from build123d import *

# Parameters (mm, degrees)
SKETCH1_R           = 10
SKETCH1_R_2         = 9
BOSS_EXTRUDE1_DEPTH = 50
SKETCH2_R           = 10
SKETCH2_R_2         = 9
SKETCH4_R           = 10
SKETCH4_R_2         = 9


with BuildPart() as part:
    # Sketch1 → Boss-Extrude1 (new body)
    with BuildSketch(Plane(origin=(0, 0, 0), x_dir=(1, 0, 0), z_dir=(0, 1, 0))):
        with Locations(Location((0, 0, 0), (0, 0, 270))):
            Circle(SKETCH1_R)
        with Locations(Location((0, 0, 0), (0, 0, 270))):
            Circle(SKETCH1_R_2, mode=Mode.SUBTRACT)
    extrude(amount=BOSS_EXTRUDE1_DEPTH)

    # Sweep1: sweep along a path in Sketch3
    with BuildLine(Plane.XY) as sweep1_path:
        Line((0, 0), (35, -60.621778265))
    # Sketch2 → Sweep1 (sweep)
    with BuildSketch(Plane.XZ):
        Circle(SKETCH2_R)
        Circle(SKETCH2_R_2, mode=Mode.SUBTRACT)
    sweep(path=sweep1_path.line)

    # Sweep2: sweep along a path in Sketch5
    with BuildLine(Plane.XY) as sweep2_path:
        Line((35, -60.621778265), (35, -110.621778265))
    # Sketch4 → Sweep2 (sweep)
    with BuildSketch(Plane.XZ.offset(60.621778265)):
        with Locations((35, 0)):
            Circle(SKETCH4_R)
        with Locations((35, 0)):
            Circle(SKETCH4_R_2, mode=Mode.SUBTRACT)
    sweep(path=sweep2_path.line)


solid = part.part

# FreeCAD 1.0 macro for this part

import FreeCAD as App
import Part
import Sketcher
from FreeCAD import Vector
Q = App.Units.Quantity

doc = App.newDocument("Part")
params = doc.addObject("Spreadsheet::Sheet", "Params")
for row, (alias, value) in enumerate([
    ("sketch1_diameter", "20 mm"),
    ("sketch1_diameter2", "18 mm"),
    ("pad1_length", "50 mm"),
    ("sketch2_diameter", "20 mm"),
    ("sketch2_diameter2", "18 mm"),
    ("sketch3_width", "70 mm"),
    ("sketch4_diameter", "20 mm"),
    ("sketch4_diameter2", "18 mm"),
    ("sketch5_height", "50 mm"),
], start=1):
    params.set(f"A{row}", alias)
    params.set(f"B{row}", "=" + value)
    params.setAlias(f"B{row}", alias)

body = doc.addObject("PartDesign::Body", "Body")

sketch1 = body.newObject("Sketcher::SketchObject", "Sketch")
sketch1.AttachmentSupport = (doc.getObject("XZ_Plane"), [""])
sketch1.MapMode = "FlatFace"
sketch1.addGeometry(Part.Circle(Vector(0, 0, 0), Vector(0, 0, 1), 10), False)
sketch1.addGeometry(Part.Circle(Vector(0, 0, 0), Vector(0, 0, 1), 9), False)
sketch1.addConstraint(Sketcher.Constraint("Coincident", 0, 3, -1, 1))
sketch1.addConstraint(Sketcher.Constraint("Coincident", 1, 3, -1, 1))
sketch1.addConstraint(Sketcher.Constraint("Diameter", 0, Q("20 mm")))
sketch1.addConstraint(Sketcher.Constraint("Diameter", 1, Q("18 mm")))
sketch1.setExpression("Constraints[2]", "Params.sketch1_diameter")
sketch1.setExpression("Constraints[3]", "Params.sketch1_diameter2")
pad1 = body.newObject("PartDesign::Pad", "Pad")
pad1.Profile = sketch1
pad1.setExpression("Length", "Params.pad1_length")
pad1.Reversed = True

sketch2 = body.newObject("Sketcher::SketchObject", "Sketch001")
sketch2.AttachmentSupport = (doc.getObject("XZ_Plane"), [""])
sketch2.MapMode = "FlatFace"
sketch2.addGeometry(Part.Circle(Vector(0, 0, 0), Vector(0, 0, 1), 10), False)
sketch2.addGeometry(Part.Circle(Vector(0, 0, 0), Vector(0, 0, 1), 9), False)
sketch2.addConstraint(Sketcher.Constraint("Coincident", 0, 3, -1, 1))
sketch2.addConstraint(Sketcher.Constraint("Coincident", 1, 3, -1, 1))
sketch2.addConstraint(Sketcher.Constraint("Diameter", 0, Q("20 mm")))
sketch2.addConstraint(Sketcher.Constraint("Diameter", 1, Q("18 mm")))
sketch2.setExpression("Constraints[2]", "Params.sketch2_diameter")
sketch2.setExpression("Constraints[3]", "Params.sketch2_diameter2")

sketch3 = body.newObject("Sketcher::SketchObject", "Sketch002")
sketch3.Placement = App.Placement(Vector(0, 0, 0), App.Rotation(Vector(0.5, -0.866025404, 0), Vector(0, 0, 1), Vector(-0.866025404, -0.5, 0), "ZXY"))
sketch3.addGeometry(Part.LineSegment(Vector(0, 0, 0), Vector(70, 0, 0)), False)
sketch3.addConstraint(Sketcher.Constraint("Horizontal", 0))
sketch3.addConstraint(Sketcher.Constraint("Coincident", 0, 1, -1, 1))
sketch3.addConstraint(Sketcher.Constraint("DistanceX", 0, 1, 0, 2, Q("70 mm")))
sketch3.setExpression("Constraints[2]", "Params.sketch3_width")
doc.recompute()

additivepipe = body.newObject("PartDesign::AdditivePipe", "AdditivePipe")
additivepipe.Profile = sketch2
additivepipe.Spine = (sketch3, ["Edge1"])

sketch4 = body.newObject("Sketcher::SketchObject", "Sketch003")
sketch4.AttachmentSupport = (doc.getObject("XZ_Plane"), [""])
sketch4.MapMode = "FlatFace"
sketch4.AttachmentOffset = App.Placement(Vector(0, 0, 60.621778), App.Rotation())
sketch4.addGeometry(Part.Circle(Vector(35, 0, 0), Vector(0, 0, 1), 10), False)
sketch4.addGeometry(Part.Circle(Vector(35, 0, 0), Vector(0, 0, 1), 9), False)
sketch4.addConstraint(Sketcher.Constraint("Coincident", 1, 3, 0, 3))
sketch4.addConstraint(Sketcher.Constraint("PointOnObject", 0, 3, -1))
sketch4.addConstraint(Sketcher.Constraint("Diameter", 0, Q("20 mm")))
sketch4.addConstraint(Sketcher.Constraint("Diameter", 1, Q("18 mm")))
sketch4.addConstraint(Sketcher.Constraint("DistanceX", -1, 1, 0, 3, Q("35 mm")))
sketch4.setExpression("Constraints[2]", "Params.sketch4_diameter")
sketch4.setExpression("Constraints[3]", "Params.sketch4_diameter2")

sketch5 = body.newObject("Sketcher::SketchObject", "Sketch004")
sketch5.AttachmentSupport = (doc.getObject("XY_Plane"), [""])
sketch5.MapMode = "FlatFace"
sketch5.addGeometry(Part.LineSegment(Vector(35, -61, 0), Vector(35, -111, 0)), False)
sketch5.addConstraint(Sketcher.Constraint("Vertical", 0))
sketch5.addConstraint(Sketcher.Constraint("DistanceY", 0, 2, 0, 1, Q("50 mm")))
sketch5.addConstraint(Sketcher.Constraint("DistanceX", -1, 1, 0, 1, Q("35 mm")))
sketch5.addConstraint(Sketcher.Constraint("DistanceY", 0, 1, -1, 1, Q("60.621778 mm")))
sketch5.setExpression("Constraints[1]", "Params.sketch5_height")
doc.recompute()

additivepipe2 = body.newObject("PartDesign::AdditivePipe", "AdditivePipe001")
additivepipe2.Profile = sketch4
additivepipe2.Spine = (sketch5, ["Edge1"])

doc.recompute()
